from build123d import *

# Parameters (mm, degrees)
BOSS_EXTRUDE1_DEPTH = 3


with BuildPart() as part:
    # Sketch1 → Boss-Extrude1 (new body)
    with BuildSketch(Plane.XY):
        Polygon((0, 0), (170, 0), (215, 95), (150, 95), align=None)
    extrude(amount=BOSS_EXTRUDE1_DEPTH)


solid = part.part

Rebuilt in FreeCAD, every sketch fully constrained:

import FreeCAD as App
import Part
import Sketcher
from FreeCAD import Vector
Q = App.Units.Quantity

doc = App.newDocument("Part")
params = doc.addObject("Spreadsheet::Sheet", "Params")
for row, (alias, value) in enumerate([
    ("sketch1_width", "170 mm"),
    ("sketch1_width2", "65 mm"),
    ("pad1_length", "3 mm"),
], start=1):
    params.set(f"A{row}", alias)
    params.set(f"B{row}", "=" + value)
    params.setAlias(f"B{row}", alias)

body = doc.addObject("PartDesign::Body", "Body")

sketch1 = body.newObject("Sketcher::SketchObject", "Sketch")
sketch1.AttachmentSupport = (doc.getObject("XY_Plane"), [""])
sketch1.MapMode = "FlatFace"
sketch1.addGeometry([
    Part.LineSegment(Vector(0, 0, 0), Vector(170, 0, 0)),
    Part.LineSegment(Vector(170, 0, 0), Vector(215, 95, 0)),
    Part.LineSegment(Vector(215, 95, 0), Vector(150, 95, 0)),
    Part.LineSegment(Vector(150, 95, 0), Vector(0, 0, 0)),
], False)
sketch1.addConstraint([
    Sketcher.Constraint("Coincident", 0, 2, 1, 1),
    Sketcher.Constraint("Coincident", 1, 2, 2, 1),
    Sketcher.Constraint("Coincident", 2, 2, 3, 1),
    Sketcher.Constraint("Coincident", 3, 2, 0, 1),
    Sketcher.Constraint("Horizontal", 0),
    Sketcher.Constraint("Horizontal", 2),
    Sketcher.Constraint("Coincident", 3, 2, -1, 1),
    Sketcher.Constraint("DistanceX", 0, 1, 0, 2, Q("170 mm")),
    Sketcher.Constraint("DistanceX", 2, 2, 2, 1, Q("65 mm")),
    Sketcher.Constraint("DistanceX", -1, 1, 1, 2, Q("215 mm")),
    Sketcher.Constraint("DistanceY", -1, 1, 1, 2, Q("95 mm")),
])
sketch1.setExpression("Constraints[7]", "Params.sketch1_width")
sketch1.setExpression("Constraints[8]", "Params.sketch1_width2")
pad1 = body.newObject("PartDesign::Pad", "Pad")
pad1.Profile = sketch1
pad1.setExpression("Length", "Params.pad1_length")

doc.recompute()
